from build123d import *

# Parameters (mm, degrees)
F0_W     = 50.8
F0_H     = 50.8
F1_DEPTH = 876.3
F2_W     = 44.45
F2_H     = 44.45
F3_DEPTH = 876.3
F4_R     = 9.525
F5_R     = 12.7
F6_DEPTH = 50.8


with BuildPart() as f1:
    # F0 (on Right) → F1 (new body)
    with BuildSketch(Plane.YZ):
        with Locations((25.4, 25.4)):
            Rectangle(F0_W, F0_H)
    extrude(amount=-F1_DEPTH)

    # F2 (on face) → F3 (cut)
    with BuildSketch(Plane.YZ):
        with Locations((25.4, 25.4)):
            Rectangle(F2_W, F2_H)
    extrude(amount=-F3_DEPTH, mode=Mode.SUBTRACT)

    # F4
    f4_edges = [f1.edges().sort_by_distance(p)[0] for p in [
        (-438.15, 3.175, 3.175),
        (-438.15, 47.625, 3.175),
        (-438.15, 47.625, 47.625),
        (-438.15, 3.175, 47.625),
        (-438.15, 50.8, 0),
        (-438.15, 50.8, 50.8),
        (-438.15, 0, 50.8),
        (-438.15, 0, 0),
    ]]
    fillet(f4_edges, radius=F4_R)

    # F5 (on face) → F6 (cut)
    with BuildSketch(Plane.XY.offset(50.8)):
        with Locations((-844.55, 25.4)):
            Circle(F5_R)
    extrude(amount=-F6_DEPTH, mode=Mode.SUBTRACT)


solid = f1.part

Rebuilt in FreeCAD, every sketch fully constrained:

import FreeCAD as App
import Part
import Sketcher
Q = App.Units.Quantity


def edges_at(feature, points):
    """Names of the edges that pass closest to the given points."""
    edges = feature.Shape.Edges
    near = lambda p: min(range(len(edges)), key=lambda i: edges[i].distToShape(Part.Vertex(*p))[0])
    return sorted({f"Edge{near(p) + 1}" for p in points})


def add_polygon(sketch, points):
    """Adds a closed chain of lines whose ends are joined by coincident constraints."""
    first, n = sketch.GeometryCount, len(points)
    for a, b in zip(points, points[1:] + points[:1]):
        sketch.addGeometry(Part.LineSegment(App.Vector(*a, 0), App.Vector(*b, 0)), False)
    for i in range(n):
        sketch.addConstraint(Sketcher.Constraint("Coincident", first + i, 2, first + (i + 1) % n, 1))

doc = App.newDocument("Part")
body = doc.addObject("PartDesign::Body", "Body")

sketch1 = body.newObject("Sketcher::SketchObject", "Sketch")
sketch1.AttachmentSupport = (doc.getObject("YZ_Plane"), [""])
sketch1.MapMode = "FlatFace"
add_polygon(sketch1, [(0, 51), (0, 0), (51, 0), (51, 51)])
sketch1.addConstraint(Sketcher.Constraint("Vertical", 0))
sketch1.addConstraint(Sketcher.Constraint("Horizontal", 1))
sketch1.addConstraint(Sketcher.Constraint("Vertical", 2))
sketch1.addConstraint(Sketcher.Constraint("Horizontal", 3))
sketch1.addConstraint(Sketcher.Constraint("Coincident", 0, 2, -1, 1))
sketch1.addConstraint(Sketcher.Constraint("Equal", 3, 0))
sketch1.addConstraint(Sketcher.Constraint("DistanceX", 1, 1, 1, 2, Q("2 in")))
pad1 = body.newObject("PartDesign::Pad", "Pad")
pad1.Profile = sketch1
pad1.Length = Q("34.5 in")
pad1.Reversed = True

sketch2 = body.newObject("Sketcher::SketchObject", "Sketch001")
sketch2.AttachmentSupport = (doc.getObject("YZ_Plane"), [""])
sketch2.MapMode = "FlatFace"
add_polygon(sketch2, [(3, 48), (3, 3), (48, 3), (48, 48)])
sketch2.addConstraint(Sketcher.Constraint("Vertical", 0))
sketch2.addConstraint(Sketcher.Constraint("Horizontal", 1))
sketch2.addConstraint(Sketcher.Constraint("Vertical", 2))
sketch2.addConstraint(Sketcher.Constraint("Horizontal", 3))
sketch2.addConstraint(Sketcher.Constraint("Equal", 3, 0))
sketch2.addConstraint(Sketcher.Constraint("DistanceX", 1, 1, 1, 2, Q("1.75 in")))
sketch2.addConstraint(Sketcher.Constraint("DistanceX", -1, 1, 0, 2, Q("0.125 in")))
sketch2.addConstraint(Sketcher.Constraint("DistanceY", -1, 1, 0, 2, Q("0.125 in")))
pocket1 = body.newObject("PartDesign::Pocket", "Pocket")
pocket1.Profile = sketch2
pocket1.Length = Q("34.5 in")
doc.recompute()

fillet = body.newObject("PartDesign::Fillet", "Fillet")
fillet.Base = (pocket1, edges_at(pocket1, [
    (-438.15, 3.175, 3.175),
    (-438.15, 47.625, 3.175),
    (-438.15, 47.625, 47.625),
    (-438.15, 3.175, 47.625),
    (-438.15, 50.8, 0),
    (-438.15, 50.8, 50.8),
    (-438.15, 0, 50.8),
    (-438.15, 0, 0),
]))
fillet.Radius = Q("0.375 in")

sketch3 = body.newObject("Sketcher::SketchObject", "Sketch002")
sketch3.AttachmentSupport = (doc.getObject("XY_Plane"), [""])
sketch3.MapMode = "FlatFace"
sketch3.AttachmentOffset = App.Placement(App.Vector(0, 0, 2 * 25.4), App.Rotation())
sketch3.addGeometry(Part.Circle(App.Vector(-845, 25, 0), App.Vector(0, 0, 1), 13), False)
sketch3.addConstraint(Sketcher.Constraint("Diameter", 0, Q("1 in")))
sketch3.addConstraint(Sketcher.Constraint("DistanceY", -1, 1, 0, 3, Q("1 in")))
sketch3.addConstraint(Sketcher.Constraint("DistanceX", 0, 3, -1, 1, Q("33.25 in")))
pocket2 = body.newObject("PartDesign::Pocket", "Pocket001")
pocket2.Profile = sketch3
pocket2.Length = Q("2 in")

doc.recompute()
